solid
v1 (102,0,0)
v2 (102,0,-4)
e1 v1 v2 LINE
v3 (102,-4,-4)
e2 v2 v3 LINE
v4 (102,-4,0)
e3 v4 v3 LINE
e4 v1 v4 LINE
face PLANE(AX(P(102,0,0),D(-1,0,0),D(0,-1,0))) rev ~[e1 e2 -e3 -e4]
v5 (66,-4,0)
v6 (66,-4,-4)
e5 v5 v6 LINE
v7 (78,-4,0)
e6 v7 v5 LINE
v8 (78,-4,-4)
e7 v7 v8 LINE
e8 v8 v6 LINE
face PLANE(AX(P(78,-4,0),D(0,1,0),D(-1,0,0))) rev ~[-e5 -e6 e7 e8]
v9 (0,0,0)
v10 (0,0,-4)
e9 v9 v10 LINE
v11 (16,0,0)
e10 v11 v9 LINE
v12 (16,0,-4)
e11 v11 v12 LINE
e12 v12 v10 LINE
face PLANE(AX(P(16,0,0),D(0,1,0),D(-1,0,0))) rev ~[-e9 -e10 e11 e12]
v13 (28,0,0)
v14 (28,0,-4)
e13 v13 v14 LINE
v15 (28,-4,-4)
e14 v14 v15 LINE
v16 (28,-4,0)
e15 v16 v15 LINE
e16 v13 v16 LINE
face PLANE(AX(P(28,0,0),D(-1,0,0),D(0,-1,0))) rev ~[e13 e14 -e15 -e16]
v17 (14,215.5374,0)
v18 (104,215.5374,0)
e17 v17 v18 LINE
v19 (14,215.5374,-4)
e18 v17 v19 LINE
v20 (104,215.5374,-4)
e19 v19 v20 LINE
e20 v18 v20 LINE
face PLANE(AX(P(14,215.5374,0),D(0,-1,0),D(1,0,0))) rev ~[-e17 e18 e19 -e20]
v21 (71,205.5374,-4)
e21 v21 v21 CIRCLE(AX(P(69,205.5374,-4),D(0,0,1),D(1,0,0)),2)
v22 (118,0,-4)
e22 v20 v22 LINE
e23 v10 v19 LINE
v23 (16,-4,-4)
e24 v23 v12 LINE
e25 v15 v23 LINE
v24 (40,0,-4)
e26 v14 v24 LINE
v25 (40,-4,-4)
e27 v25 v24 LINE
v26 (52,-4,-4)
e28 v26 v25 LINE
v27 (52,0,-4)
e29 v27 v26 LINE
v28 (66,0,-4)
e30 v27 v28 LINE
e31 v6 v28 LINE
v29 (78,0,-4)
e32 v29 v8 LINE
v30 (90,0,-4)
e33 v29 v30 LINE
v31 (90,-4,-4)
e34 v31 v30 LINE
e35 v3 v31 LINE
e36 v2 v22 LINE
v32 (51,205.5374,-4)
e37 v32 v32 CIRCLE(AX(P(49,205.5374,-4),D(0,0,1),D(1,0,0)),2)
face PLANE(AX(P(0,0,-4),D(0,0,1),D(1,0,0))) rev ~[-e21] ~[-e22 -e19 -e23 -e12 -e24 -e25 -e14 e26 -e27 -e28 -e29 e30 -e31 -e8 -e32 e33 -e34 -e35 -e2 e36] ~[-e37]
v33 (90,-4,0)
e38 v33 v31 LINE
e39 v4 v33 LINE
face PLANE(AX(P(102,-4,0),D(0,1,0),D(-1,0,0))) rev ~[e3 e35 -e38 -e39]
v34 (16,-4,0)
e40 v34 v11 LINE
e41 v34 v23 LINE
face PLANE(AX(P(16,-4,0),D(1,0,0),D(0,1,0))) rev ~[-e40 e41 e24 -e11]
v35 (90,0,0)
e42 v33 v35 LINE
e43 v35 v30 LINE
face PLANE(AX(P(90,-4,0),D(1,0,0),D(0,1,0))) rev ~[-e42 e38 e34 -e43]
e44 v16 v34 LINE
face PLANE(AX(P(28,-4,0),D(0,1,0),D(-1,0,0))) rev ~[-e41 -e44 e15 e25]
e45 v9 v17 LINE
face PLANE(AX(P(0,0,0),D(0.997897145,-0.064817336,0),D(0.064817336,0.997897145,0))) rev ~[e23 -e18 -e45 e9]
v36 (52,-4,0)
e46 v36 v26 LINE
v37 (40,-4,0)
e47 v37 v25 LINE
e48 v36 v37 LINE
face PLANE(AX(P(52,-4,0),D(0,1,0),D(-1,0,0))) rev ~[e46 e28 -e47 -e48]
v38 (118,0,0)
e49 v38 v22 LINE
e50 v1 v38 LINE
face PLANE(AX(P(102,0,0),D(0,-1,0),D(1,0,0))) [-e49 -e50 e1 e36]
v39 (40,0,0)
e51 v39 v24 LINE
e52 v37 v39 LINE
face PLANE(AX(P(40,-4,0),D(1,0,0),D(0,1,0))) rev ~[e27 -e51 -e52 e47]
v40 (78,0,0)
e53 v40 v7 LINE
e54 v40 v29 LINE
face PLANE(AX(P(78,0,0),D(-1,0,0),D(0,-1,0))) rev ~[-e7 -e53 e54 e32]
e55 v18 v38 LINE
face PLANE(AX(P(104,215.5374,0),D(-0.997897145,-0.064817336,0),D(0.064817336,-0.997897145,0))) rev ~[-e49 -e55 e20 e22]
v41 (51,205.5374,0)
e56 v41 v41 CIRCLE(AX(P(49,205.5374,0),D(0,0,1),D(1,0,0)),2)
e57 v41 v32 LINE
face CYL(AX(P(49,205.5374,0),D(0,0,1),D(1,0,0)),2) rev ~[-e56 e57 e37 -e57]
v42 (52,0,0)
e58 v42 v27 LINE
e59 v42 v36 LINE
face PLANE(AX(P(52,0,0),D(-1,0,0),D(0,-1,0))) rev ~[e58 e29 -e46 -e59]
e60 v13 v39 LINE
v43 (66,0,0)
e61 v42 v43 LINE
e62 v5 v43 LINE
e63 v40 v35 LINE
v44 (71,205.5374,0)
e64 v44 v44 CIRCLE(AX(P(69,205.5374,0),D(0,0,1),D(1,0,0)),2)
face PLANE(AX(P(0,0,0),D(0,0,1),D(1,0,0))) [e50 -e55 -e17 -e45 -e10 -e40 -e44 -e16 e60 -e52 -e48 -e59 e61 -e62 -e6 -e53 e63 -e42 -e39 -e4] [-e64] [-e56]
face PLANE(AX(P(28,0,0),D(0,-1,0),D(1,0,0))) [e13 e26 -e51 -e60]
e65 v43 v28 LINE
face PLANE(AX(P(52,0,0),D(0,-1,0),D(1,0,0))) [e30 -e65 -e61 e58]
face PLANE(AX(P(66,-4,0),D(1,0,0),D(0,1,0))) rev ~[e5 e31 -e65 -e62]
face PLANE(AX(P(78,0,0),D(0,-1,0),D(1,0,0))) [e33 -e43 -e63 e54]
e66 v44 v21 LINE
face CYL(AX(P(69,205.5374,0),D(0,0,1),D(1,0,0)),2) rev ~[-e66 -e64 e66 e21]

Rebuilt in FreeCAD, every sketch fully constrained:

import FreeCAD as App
import Part
import Sketcher

doc = App.newDocument("Part")
params = doc.addObject("Spreadsheet::Sheet", "Params")
for row, (alias, value) in enumerate([
    ("sketch1_width", "16 mm"),
    ("sketch1_width2", "12 mm"),
    ("sketch1_width3", "14 mm"),
    ("sketch1_width4", "90 mm"),
    ("sketch1_height", "4 mm"),
    ("pad1_length", "4 mm"),
    ("sketch2_diameter", "4 mm"),
    ("pocket1_length", "4 mm"),
], start=1):
    params.set(f"A{row}", alias)
    params.set(f"B{row}", "=" + value)
    params.setAlias(f"B{row}", alias)

body = doc.addObject("PartDesign::Body", "Body")

# Sketch on XY plane
sketch1 = body.newObject("Sketcher::SketchObject", "Sketch")
sketch1.AttachmentSupport = (doc.getObject("XY_Plane"), [""])
sketch1.MapMode = "FlatFace"
sketch1.addGeometry([
    Part.LineSegment(App.Vector(14, 215.5, 0), App.Vector(0, 0, 0)),  # 0
    Part.LineSegment(App.Vector(0, 0, 0), App.Vector(16, 0, 0)),  # 1
    Part.LineSegment(App.Vector(16, 0, 0), App.Vector(16, -4, 0)),  # 2
    Part.LineSegment(App.Vector(16, -4, 0), App.Vector(28, -4, 0)),  # 3
    Part.LineSegment(App.Vector(28, -4, 0), App.Vector(28, 0, 0)),  # 4
    Part.LineSegment(App.Vector(28, 0, 0), App.Vector(40, 0, 0)),  # 5
    Part.LineSegment(App.Vector(40, 0, 0), App.Vector(40, -4, 0)),  # 6
    Part.LineSegment(App.Vector(40, -4, 0), App.Vector(52, -4, 0)),  # 7
    Part.LineSegment(App.Vector(52, -4, 0), App.Vector(52, 0, 0)),  # 8
    Part.LineSegment(App.Vector(52, 0, 0), App.Vector(66, 0, 0)),  # 9
    Part.LineSegment(App.Vector(66, 0, 0), App.Vector(66, -4, 0)),  # 10
    Part.LineSegment(App.Vector(66, -4, 0), App.Vector(78, -4, 0)),  # 11
    Part.LineSegment(App.Vector(78, -4, 0), App.Vector(78, 0, 0)),  # 12
    Part.LineSegment(App.Vector(78, 0, 0), App.Vector(90, 0, 0)),  # 13
    Part.LineSegment(App.Vector(90, 0, 0), App.Vector(90, -4, 0)),  # 14
    Part.LineSegment(App.Vector(90, -4, 0), App.Vector(102, -4, 0)),  # 15
    Part.LineSegment(App.Vector(102, -4, 0), App.Vector(102, 0, 0)),  # 16
    Part.LineSegment(App.Vector(102, 0, 0), App.Vector(118, 0, 0)),  # 17
    Part.LineSegment(App.Vector(118, 0, 0), App.Vector(104, 215.5, 0)),  # 18
    Part.LineSegment(App.Vector(104, 215.5, 0), App.Vector(14, 215.5, 0)),  # 19
], False)
sketch1.addConstraint([
    Sketcher.Constraint("Coincident", 0, 2, 1, 1),
    Sketcher.Constraint("Coincident", 1, 2, 2, 1),
    Sketcher.Constraint("Coincident", 2, 2, 3, 1),
    Sketcher.Constraint("Coincident", 3, 2, 4, 1),
    Sketcher.Constraint("Coincident", 4, 2, 5, 1),
    Sketcher.Constraint("Coincident", 5, 2, 6, 1),
    Sketcher.Constraint("Coincident", 6, 2, 7, 1),
    Sketcher.Constraint("Coincident", 7, 2, 8, 1),
    Sketcher.Constraint("Coincident", 8, 2, 9, 1),
    Sketcher.Constraint("Coincident", 9, 2, 10, 1),
    Sketcher.Constraint("Coincident", 10, 2, 11, 1),
    Sketcher.Constraint("Coincident", 11, 2, 12, 1),
    Sketcher.Constraint("Coincident", 12, 2, 13, 1),
    Sketcher.Constraint("Coincident", 13, 2, 14, 1),
    Sketcher.Constraint("Coincident", 14, 2, 15, 1),
    Sketcher.Constraint("Coincident", 15, 2, 16, 1),
    Sketcher.Constraint("Coincident", 16, 2, 17, 1),
    Sketcher.Constraint("Coincident", 17, 2, 18, 1),
    Sketcher.Constraint("Coincident", 18, 2, 19, 1),
    Sketcher.Constraint("Coincident", 19, 2, 0, 1),
    Sketcher.Constraint("Horizontal", 1),
    Sketcher.Constraint("Vertical", 2),
    Sketcher.Constraint("Horizontal", 3),
    Sketcher.Constraint("Vertical", 4),
    Sketcher.Constraint("Horizontal", 5),
    Sketcher.Constraint("Vertical", 6),
    Sketcher.Constraint("Horizontal", 7),
    Sketcher.Constraint("Vertical", 8),
    Sketcher.Constraint("Horizontal", 9),
    Sketcher.Constraint("Vertical", 10),
    Sketcher.Constraint("Horizontal", 11),
    Sketcher.Constraint("Vertical", 12),
    Sketcher.Constraint("Horizontal", 13),
    Sketcher.Constraint("Vertical", 14),
    Sketcher.Constraint("Horizontal", 15),
    Sketcher.Constraint("Vertical", 16),
    Sketcher.Constraint("Horizontal", 17),
    Sketcher.Constraint("Horizontal", 19),
    Sketcher.Constraint("Coincident", 0, 2, -1, 1),
    Sketcher.Constraint("PointOnObject", 4, 2, -1),
    Sketcher.Constraint("PointOnObject", 8, 2, -1),
    Sketcher.Constraint("PointOnObject", 12, 2, -1),
    Sketcher.Constraint("PointOnObject", 16, 2, -1),
    Sketcher.Constraint("Horizontal", 3, 2, 6, 2),
    Sketcher.Constraint("Horizontal", 7, 2, 10, 2),
    Sketcher.Constraint("Horizontal", 11, 2, 14, 2),
    Sketcher.Constraint("Equal", 3, 5),
    Sketcher.Constraint("Equal", 5, 7),
    Sketcher.Constraint("Equal", 7, 11),
    Sketcher.Constraint("Equal", 11, 13),
    Sketcher.Constraint("Equal", 13, 15),
    Sketcher.Constraint("Equal", 1, 17),
    Sketcher.Constraint("Equal", 0, 18),
    Sketcher.Constraint("DistanceX", 1, 1, 1, 2, 16.0),
    Sketcher.Constraint("DistanceX", 3, 1, 3, 2, 12.0),
    Sketcher.Constraint("DistanceX", 9, 1, 9, 2, 14.0),
    Sketcher.Constraint("DistanceX", 19, 2, 19, 1, 90.0),
    Sketcher.Constraint("DistanceY", 2, 2, 2, 1, 4.0),
    Sketcher.Constraint("Distance", 0, 215.9916),
])
sketch1.setExpression("Constraints[53]", "Params.sketch1_width")
sketch1.setExpression("Constraints[54]", "Params.sketch1_width2")
sketch1.setExpression("Constraints[55]", "Params.sketch1_width3")
sketch1.setExpression("Constraints[56]", "Params.sketch1_width4")
sketch1.setExpression("Constraints[57]", "Params.sketch1_height")
pad1 = body.newObject("PartDesign::Pad", "Pad")
pad1.Profile = sketch1
pad1.setExpression("Length", "Params.pad1_length")
pad1.Reversed = True

# Sketch on XY plane
sketch2 = body.newObject("Sketcher::SketchObject", "Sketch001")
sketch2.AttachmentSupport = (doc.getObject("XY_Plane"), [""])
sketch2.MapMode = "FlatFace"
sketch2.addGeometry([
    Part.Circle(App.Vector(49, 205.5, 0), App.Vector(0, 0, 1), 2),
    Part.Circle(App.Vector(69, 205.5, 0), App.Vector(0, 0, 1), 2),
], False)
sketch2.addConstraint([
    Sketcher.Constraint("Equal", 0, 1),
    Sketcher.Constraint("Horizontal", 0, 3, 1, 3),
    Sketcher.Constraint("Diameter", 0, 4.0),
    Sketcher.Constraint("DistanceX", 0, 3, 1, 3, 20.0),
    Sketcher.Constraint("DistanceX", -1, 1, 0, 3, 49.0),
    Sketcher.Constraint("DistanceY", -1, 1, 0, 3, 205.5374),
])
sketch2.setExpression("Constraints[2]", "Params.sketch2_diameter")
pocket1 = body.newObject("PartDesign::Pocket", "Pocket")
pocket1.Profile = sketch2
pocket1.setExpression("Length", "Params.pocket1_length")

doc.recompute()
